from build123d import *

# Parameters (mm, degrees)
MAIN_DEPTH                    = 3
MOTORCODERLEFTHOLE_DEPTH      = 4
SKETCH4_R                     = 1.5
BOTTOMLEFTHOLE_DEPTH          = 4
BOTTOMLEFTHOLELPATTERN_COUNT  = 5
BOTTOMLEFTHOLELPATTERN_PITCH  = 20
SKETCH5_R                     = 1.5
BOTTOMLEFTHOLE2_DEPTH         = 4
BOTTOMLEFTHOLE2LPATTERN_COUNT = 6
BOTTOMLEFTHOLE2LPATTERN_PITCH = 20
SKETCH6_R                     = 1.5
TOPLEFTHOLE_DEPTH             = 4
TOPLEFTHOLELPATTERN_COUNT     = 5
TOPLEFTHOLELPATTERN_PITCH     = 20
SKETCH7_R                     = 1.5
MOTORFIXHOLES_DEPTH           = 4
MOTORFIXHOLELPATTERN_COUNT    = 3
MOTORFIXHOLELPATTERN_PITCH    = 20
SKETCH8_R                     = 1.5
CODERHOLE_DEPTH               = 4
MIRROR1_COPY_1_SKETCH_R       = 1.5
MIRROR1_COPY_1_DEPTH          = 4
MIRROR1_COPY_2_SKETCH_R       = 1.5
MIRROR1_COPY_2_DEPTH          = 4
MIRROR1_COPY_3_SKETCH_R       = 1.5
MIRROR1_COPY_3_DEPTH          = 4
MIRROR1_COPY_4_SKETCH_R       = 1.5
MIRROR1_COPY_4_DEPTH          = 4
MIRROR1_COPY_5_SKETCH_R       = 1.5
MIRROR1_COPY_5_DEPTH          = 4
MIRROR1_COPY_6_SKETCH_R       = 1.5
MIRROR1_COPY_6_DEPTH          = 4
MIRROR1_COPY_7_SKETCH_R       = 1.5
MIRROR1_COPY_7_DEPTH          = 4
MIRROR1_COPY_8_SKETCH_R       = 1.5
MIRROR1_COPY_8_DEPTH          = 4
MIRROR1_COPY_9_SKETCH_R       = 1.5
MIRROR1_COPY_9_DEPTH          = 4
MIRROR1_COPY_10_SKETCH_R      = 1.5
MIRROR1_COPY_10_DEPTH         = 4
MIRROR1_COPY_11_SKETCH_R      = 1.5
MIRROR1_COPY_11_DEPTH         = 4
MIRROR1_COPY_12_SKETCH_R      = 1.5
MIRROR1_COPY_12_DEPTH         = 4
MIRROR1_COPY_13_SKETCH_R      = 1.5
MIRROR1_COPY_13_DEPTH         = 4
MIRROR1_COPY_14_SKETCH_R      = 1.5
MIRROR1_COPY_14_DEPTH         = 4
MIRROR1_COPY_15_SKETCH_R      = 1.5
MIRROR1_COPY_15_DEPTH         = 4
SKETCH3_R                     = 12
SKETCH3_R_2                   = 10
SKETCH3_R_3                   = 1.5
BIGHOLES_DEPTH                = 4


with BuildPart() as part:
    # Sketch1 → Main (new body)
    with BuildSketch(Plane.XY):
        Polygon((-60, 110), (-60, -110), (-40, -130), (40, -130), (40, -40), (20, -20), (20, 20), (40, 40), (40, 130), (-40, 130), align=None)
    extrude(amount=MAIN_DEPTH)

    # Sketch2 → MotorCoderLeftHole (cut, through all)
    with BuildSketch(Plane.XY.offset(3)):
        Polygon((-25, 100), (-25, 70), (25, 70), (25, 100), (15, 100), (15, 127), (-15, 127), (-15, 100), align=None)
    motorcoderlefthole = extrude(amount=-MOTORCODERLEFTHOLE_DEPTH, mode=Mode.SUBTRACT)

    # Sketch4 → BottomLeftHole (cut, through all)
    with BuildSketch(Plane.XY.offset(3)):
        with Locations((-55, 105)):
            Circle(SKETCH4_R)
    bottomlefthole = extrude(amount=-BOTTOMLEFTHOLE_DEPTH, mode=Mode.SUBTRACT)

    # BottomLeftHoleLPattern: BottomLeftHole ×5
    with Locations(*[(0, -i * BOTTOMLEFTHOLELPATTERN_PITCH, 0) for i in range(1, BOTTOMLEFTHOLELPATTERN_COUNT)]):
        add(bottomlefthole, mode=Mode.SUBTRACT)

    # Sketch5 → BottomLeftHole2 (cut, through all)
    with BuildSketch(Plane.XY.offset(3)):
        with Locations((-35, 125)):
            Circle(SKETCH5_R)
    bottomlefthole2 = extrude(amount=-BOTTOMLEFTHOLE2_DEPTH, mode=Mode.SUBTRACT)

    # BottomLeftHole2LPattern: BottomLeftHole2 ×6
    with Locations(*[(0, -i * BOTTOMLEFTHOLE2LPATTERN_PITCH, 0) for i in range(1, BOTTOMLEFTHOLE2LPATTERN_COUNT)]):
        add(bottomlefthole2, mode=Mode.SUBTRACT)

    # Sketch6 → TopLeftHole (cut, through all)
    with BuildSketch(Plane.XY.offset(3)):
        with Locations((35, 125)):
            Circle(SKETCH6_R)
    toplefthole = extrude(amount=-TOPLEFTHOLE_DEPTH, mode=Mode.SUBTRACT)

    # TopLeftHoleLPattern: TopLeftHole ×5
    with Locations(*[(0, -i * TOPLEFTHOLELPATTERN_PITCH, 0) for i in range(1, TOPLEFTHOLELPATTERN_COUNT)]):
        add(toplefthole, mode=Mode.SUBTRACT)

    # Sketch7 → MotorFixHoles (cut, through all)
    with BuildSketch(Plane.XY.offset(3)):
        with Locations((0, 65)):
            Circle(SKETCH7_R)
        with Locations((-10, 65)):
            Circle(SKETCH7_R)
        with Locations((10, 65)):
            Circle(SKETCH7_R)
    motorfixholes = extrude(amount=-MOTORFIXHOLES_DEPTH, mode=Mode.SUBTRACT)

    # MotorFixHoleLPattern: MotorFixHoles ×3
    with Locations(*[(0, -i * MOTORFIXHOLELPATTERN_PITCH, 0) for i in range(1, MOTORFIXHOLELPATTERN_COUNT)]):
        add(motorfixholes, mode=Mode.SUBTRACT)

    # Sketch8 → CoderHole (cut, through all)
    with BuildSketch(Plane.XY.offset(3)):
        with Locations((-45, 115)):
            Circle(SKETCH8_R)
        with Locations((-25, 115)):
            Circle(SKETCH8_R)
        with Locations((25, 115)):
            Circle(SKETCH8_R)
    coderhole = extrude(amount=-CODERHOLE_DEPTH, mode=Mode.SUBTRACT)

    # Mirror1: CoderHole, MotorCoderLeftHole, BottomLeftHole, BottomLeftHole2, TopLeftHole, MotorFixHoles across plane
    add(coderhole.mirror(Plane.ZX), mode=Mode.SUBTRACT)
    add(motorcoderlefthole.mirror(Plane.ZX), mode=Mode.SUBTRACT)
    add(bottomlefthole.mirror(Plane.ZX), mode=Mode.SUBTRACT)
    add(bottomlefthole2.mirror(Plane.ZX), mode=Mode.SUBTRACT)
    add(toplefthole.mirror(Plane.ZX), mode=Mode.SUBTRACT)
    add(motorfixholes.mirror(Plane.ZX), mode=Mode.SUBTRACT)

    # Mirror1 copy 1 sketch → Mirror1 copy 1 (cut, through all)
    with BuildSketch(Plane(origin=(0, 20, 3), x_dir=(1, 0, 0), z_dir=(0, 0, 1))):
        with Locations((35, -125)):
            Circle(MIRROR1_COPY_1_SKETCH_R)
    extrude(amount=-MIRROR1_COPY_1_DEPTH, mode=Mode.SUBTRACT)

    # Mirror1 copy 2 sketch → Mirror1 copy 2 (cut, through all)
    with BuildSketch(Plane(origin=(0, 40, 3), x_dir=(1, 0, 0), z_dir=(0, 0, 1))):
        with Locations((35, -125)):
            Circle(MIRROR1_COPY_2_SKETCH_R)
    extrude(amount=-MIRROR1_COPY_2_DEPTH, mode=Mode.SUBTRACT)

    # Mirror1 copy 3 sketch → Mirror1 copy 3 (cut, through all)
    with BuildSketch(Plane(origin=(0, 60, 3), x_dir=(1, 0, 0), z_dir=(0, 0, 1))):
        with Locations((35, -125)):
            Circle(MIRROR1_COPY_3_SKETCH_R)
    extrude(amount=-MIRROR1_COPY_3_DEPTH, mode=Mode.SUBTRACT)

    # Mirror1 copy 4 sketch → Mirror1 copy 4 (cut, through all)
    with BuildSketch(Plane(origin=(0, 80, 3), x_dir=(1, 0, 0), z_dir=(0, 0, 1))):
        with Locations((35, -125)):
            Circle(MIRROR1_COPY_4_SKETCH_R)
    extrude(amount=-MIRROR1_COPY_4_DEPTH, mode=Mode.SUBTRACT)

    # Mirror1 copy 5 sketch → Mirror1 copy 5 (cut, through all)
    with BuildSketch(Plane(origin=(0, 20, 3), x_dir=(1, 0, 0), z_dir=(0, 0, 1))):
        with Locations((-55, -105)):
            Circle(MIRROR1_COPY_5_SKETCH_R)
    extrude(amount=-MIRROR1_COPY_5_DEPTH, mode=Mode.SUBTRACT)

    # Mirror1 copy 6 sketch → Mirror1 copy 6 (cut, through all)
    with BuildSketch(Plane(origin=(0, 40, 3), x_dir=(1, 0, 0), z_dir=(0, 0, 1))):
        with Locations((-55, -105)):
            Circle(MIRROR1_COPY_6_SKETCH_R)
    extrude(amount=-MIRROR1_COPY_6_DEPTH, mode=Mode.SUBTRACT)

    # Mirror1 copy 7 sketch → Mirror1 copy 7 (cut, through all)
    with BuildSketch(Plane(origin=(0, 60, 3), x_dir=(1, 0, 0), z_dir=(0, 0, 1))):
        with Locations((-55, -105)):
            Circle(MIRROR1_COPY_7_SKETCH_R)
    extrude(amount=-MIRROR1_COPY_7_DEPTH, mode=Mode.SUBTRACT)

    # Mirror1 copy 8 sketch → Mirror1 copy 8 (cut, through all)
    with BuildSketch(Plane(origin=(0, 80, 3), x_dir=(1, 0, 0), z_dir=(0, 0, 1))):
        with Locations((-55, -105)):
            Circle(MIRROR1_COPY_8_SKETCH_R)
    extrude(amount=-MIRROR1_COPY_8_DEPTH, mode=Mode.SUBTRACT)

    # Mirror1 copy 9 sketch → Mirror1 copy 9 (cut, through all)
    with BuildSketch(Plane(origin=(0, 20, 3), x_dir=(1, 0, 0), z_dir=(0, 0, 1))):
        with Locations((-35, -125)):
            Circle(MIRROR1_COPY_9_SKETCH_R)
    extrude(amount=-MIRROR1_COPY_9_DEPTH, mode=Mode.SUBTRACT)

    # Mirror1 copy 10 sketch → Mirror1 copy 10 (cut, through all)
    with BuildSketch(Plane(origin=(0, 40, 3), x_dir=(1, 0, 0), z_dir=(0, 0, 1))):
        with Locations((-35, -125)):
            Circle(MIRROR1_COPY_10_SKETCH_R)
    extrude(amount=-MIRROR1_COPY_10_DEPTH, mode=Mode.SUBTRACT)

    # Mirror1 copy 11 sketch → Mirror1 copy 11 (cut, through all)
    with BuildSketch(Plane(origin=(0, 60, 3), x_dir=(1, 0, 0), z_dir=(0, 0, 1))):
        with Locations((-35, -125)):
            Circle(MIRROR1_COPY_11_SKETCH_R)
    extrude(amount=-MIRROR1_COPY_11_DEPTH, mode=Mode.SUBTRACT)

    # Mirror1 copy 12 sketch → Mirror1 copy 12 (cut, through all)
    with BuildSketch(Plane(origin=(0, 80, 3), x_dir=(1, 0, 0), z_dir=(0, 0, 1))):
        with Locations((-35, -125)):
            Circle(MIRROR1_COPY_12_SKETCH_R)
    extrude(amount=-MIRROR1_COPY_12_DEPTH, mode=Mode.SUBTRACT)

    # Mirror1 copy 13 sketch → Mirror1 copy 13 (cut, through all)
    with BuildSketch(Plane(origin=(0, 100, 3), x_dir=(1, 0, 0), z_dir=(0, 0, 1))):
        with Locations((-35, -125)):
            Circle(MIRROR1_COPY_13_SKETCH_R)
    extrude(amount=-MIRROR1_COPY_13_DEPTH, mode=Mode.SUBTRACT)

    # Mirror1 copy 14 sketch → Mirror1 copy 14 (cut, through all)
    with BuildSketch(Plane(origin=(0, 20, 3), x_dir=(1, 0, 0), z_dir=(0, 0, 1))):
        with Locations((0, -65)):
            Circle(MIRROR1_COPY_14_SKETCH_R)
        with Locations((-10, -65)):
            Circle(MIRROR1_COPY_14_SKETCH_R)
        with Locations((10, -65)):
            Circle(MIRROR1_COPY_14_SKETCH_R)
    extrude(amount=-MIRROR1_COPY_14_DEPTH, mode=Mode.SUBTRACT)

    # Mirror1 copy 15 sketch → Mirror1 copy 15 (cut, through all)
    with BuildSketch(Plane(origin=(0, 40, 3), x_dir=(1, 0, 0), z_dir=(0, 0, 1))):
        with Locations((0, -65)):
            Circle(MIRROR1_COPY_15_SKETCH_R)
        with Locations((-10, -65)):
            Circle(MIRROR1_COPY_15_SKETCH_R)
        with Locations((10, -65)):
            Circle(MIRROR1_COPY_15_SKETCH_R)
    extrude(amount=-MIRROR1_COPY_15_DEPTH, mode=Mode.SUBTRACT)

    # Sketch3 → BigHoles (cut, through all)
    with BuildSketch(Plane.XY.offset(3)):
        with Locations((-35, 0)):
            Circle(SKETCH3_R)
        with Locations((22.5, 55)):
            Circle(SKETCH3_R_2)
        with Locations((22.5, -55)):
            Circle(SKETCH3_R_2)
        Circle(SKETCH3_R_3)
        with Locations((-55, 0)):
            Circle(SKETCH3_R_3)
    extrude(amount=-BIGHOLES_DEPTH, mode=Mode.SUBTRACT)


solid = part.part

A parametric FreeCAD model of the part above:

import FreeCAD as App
import Part
import Sketcher
from FreeCAD import Vector
Q = App.Units.Quantity

doc = App.newDocument("Part")
body = doc.addObject("PartDesign::Body", "Body")

sketch1 = body.newObject("Sketcher::SketchObject", "Sketch")
sketch1.AttachmentSupport = (doc.getObject("XY_Plane"), [""])
sketch1.MapMode = "FlatFace"
sketch1.addGeometry([
    Part.LineSegment(Vector(-60, 110, 0), Vector(-60, -110, 0)),
    Part.LineSegment(Vector(-60, -110, 0), Vector(-40, -130, 0)),
    Part.LineSegment(Vector(-40, -130, 0), Vector(40, -130, 0)),
    Part.LineSegment(Vector(40, -130, 0), Vector(40, -40, 0)),
    Part.LineSegment(Vector(40, -40, 0), Vector(20, -20, 0)),
    Part.LineSegment(Vector(20, -20, 0), Vector(20, 20, 0)),
    Part.LineSegment(Vector(20, 20, 0), Vector(40, 40, 0)),
    Part.LineSegment(Vector(40, 40, 0), Vector(40, 130, 0)),
    Part.LineSegment(Vector(40, 130, 0), Vector(-40, 130, 0)),
    Part.LineSegment(Vector(-40, 130, 0), Vector(-60, 110, 0)),
], False)
sketch1.addConstraint([
    Sketcher.Constraint("Coincident", 0, 2, 1, 1),
    Sketcher.Constraint("Coincident", 1, 2, 2, 1),
    Sketcher.Constraint("Coincident", 2, 2, 3, 1),
    Sketcher.Constraint("Coincident", 3, 2, 4, 1),
    Sketcher.Constraint("Coincident", 4, 2, 5, 1),
    Sketcher.Constraint("Coincident", 5, 2, 6, 1),
    Sketcher.Constraint("Coincident", 6, 2, 7, 1),
    Sketcher.Constraint("Coincident", 7, 2, 8, 1),
    Sketcher.Constraint("Coincident", 8, 2, 9, 1),
    Sketcher.Constraint("Coincident", 9, 2, 0, 1),
    Sketcher.Constraint("Vertical", 0),
    Sketcher.Constraint("Horizontal", 2),
    Sketcher.Constraint("Vertical", 3),
    Sketcher.Constraint("Vertical", 5),
    Sketcher.Constraint("Vertical", 7),
    Sketcher.Constraint("Horizontal", 8),
    Sketcher.Constraint("Symmetric", 1, 2, 7, 2, -1, 1),
    Sketcher.Constraint("Symmetric", 3, 2, 6, 2, -1),
    Sketcher.Constraint("Parallel", 1, 4),
    Sketcher.Constraint("Perpendicular", 4, 6),
    Sketcher.Constraint("Parallel", 6, 9),
    Sketcher.Constraint("Vertical", 1, 2, 8, 2),
    Sketcher.Constraint("Equal", 1, 4),
    Sketcher.Constraint("Equal", 4, 6),
    Sketcher.Constraint("DistanceX", 2, 1, 2, 2, Q("80 mm")),
    Sketcher.Constraint("DistanceY", 0, 2, 0, 1, Q("220 mm")),
    Sketcher.Constraint("DistanceY", 3, 1, 3, 2, Q("90 mm")),
    Sketcher.Constraint("DistanceX", 0, 2, -1, 1, Q("60 mm")),
])
pad1 = body.newObject("PartDesign::Pad", "Pad")
pad1.Profile = sketch1
pad1.Length = 3

sketch2 = body.newObject("Sketcher::SketchObject", "Sketch001")
sketch2.AttachmentSupport = (doc.getObject("XY_Plane"), [""])
sketch2.MapMode = "FlatFace"
sketch2.AttachmentOffset = App.Placement(Vector(0, 0, 3), App.Rotation())
sketch2.addGeometry([
    Part.LineSegment(Vector(-25, 100, 0), Vector(-25, 70, 0)),
    Part.LineSegment(Vector(-25, 70, 0), Vector(25, 70, 0)),
    Part.LineSegment(Vector(25, 70, 0), Vector(25, 100, 0)),
    Part.LineSegment(Vector(25, 100, 0), Vector(15, 100, 0)),
    Part.LineSegment(Vector(15, 100, 0), Vector(15, 127, 0)),
    Part.LineSegment(Vector(15, 127, 0), Vector(-15, 127, 0)),
    Part.LineSegment(Vector(-15, 127, 0), Vector(-15, 100, 0)),
    Part.LineSegment(Vector(-15, 100, 0), Vector(-25, 100, 0)),
], False)
sketch2.addConstraint([
    Sketcher.Constraint("Coincident", 0, 2, 1, 1),
    Sketcher.Constraint("Coincident", 1, 2, 2, 1),
    Sketcher.Constraint("Coincident", 2, 2, 3, 1),
    Sketcher.Constraint("Coincident", 3, 2, 4, 1),
    Sketcher.Constraint("Coincident", 4, 2, 5, 1),
    Sketcher.Constraint("Coincident", 5, 2, 6, 1),
    Sketcher.Constraint("Coincident", 6, 2, 7, 1),
    Sketcher.Constraint("Coincident", 7, 2, 0, 1),
    Sketcher.Constraint("Vertical", 0),
    Sketcher.Constraint("Horizontal", 1),
    Sketcher.Constraint("Vertical", 2),
    Sketcher.Constraint("Horizontal", 3),
    Sketcher.Constraint("Vertical", 4),
    Sketcher.Constraint("Horizontal", 5),
    Sketcher.Constraint("Vertical", 6),
    Sketcher.Constraint("Horizontal", 7),
    Sketcher.Constraint("Symmetric", 3, 2, 6, 2, -2),
    Sketcher.Constraint("Equal", 3, 7),
    Sketcher.Constraint("Equal", 5, 0),
    Sketcher.Constraint("DistanceX", 1, 1, 1, 2, Q("50 mm")),
    Sketcher.Constraint("DistanceX", 3, 2, 3, 1, Q("10 mm")),
    Sketcher.Constraint("DistanceY", 4, 1, 4, 2, Q("27 mm")),
    Sketcher.Constraint("DistanceY", -1, 1, 0, 2, Q("70 mm")),
])
pocket1 = body.newObject("PartDesign::Pocket", "Pocket")
pocket1.Profile = sketch2
pocket1.Type = "ThroughAll"

sketch3 = body.newObject("Sketcher::SketchObject", "Sketch002")
sketch3.AttachmentSupport = (doc.getObject("XY_Plane"), [""])
sketch3.MapMode = "FlatFace"
sketch3.AttachmentOffset = App.Placement(Vector(0, 0, 3), App.Rotation())
sketch3.addGeometry(Part.Circle(Vector(-55, 105, 0), Vector(0, 0, 1), 1.5), False)
sketch3.addConstraint([
    Sketcher.Constraint("Diameter", 0, Q("3 mm")),
    Sketcher.Constraint("DistanceX", 0, 3, -1, 1, Q("55 mm")),
    Sketcher.Constraint("DistanceY", -1, 1, 0, 3, Q("105 mm")),
])
pocket2 = body.newObject("PartDesign::Pocket", "Pocket001")
pocket2.Profile = sketch3
pocket2.Type = "ThroughAll"
doc.recompute()

linearpattern = body.newObject("PartDesign::LinearPattern", "LinearPattern")
linearpattern.Originals = [pocket2]
linearpattern.Direction = (doc.getObject("Y_Axis"), [""])
linearpattern.Mode = "offset"
linearpattern.Offset = 20
linearpattern.Occurrences = 5
linearpattern.Reversed = True
body.Tip = linearpattern

sketch4 = body.newObject("Sketcher::SketchObject", "Sketch003")
sketch4.AttachmentSupport = (doc.getObject("XY_Plane"), [""])
sketch4.MapMode = "FlatFace"
sketch4.AttachmentOffset = App.Placement(Vector(0, 0, 3), App.Rotation())
sketch4.addGeometry(Part.Circle(Vector(-35, 125, 0), Vector(0, 0, 1), 1.5), False)
sketch4.addConstraint([
    Sketcher.Constraint("Diameter", 0, Q("3 mm")),
    Sketcher.Constraint("DistanceX", 0, 3, -1, 1, Q("35 mm")),
    Sketcher.Constraint("DistanceY", -1, 1, 0, 3, Q("125 mm")),
])
pocket3 = body.newObject("PartDesign::Pocket", "Pocket002")
pocket3.Profile = sketch4
pocket3.Type = "ThroughAll"
doc.recompute()

linearpattern2 = body.newObject("PartDesign::LinearPattern", "LinearPattern001")
linearpattern2.Originals = [pocket3]
linearpattern2.Direction = (doc.getObject("Y_Axis"), [""])
linearpattern2.Mode = "offset"
linearpattern2.Offset = 20
linearpattern2.Occurrences = 6
linearpattern2.Reversed = True
body.Tip = linearpattern2

sketch5 = body.newObject("Sketcher::SketchObject", "Sketch004")
sketch5.AttachmentSupport = (doc.getObject("XY_Plane"), [""])
sketch5.MapMode = "FlatFace"
sketch5.AttachmentOffset = App.Placement(Vector(0, 0, 3), App.Rotation())
sketch5.addGeometry(Part.Circle(Vector(35, 125, 0), Vector(0, 0, 1), 1.5), False)
sketch5.addConstraint([
    Sketcher.Constraint("Diameter", 0, Q("3 mm")),
    Sketcher.Constraint("DistanceX", -1, 1, 0, 3, Q("35 mm")),
    Sketcher.Constraint("DistanceY", -1, 1, 0, 3, Q("125 mm")),
])
pocket4 = body.newObject("PartDesign::Pocket", "Pocket003")
pocket4.Profile = sketch5
pocket4.Type = "ThroughAll"
doc.recompute()

linearpattern3 = body.newObject("PartDesign::LinearPattern", "LinearPattern002")
linearpattern3.Originals = [pocket4]
linearpattern3.Direction = (doc.getObject("Y_Axis"), [""])
linearpattern3.Mode = "offset"
linearpattern3.Offset = 20
linearpattern3.Occurrences = 5
linearpattern3.Reversed = True
body.Tip = linearpattern3

sketch6 = body.newObject("Sketcher::SketchObject", "Sketch005")
sketch6.AttachmentSupport = (doc.getObject("XY_Plane"), [""])
sketch6.MapMode = "FlatFace"
sketch6.AttachmentOffset = App.Placement(Vector(0, 0, 3), App.Rotation())
sketch6.addGeometry([
    Part.Circle(Vector(0, 65, 0), Vector(0, 0, 1), 1.5),
    Part.Circle(Vector(-10, 65, 0), Vector(0, 0, 1), 1.5),
    Part.Circle(Vector(10, 65, 0), Vector(0, 0, 1), 1.5),
], False)
sketch6.addConstraint([
    Sketcher.Constraint("Equal", 0, 1),
    Sketcher.Constraint("Equal", 1, 2),
    Sketcher.Constraint("Symmetric", 1, 3, 2, 3, -2),
    Sketcher.Constraint("PointOnObject", 0, 3, -2),
    Sketcher.Constraint("Horizontal", 0, 3, 1, 3),
    Sketcher.Constraint("Diameter", 0, Q("3 mm")),
    Sketcher.Constraint("DistanceY", -1, 1, 0, 3, Q("65 mm")),
    Sketcher.Constraint("DistanceX", 1, 3, -1, 1, Q("10 mm")),
])
pocket5 = body.newObject("PartDesign::Pocket", "Pocket004")
pocket5.Profile = sketch6
pocket5.Type = "ThroughAll"
doc.recompute()

linearpattern4 = body.newObject("PartDesign::LinearPattern", "LinearPattern003")
linearpattern4.Originals = [pocket5]
linearpattern4.Direction = (doc.getObject("Y_Axis"), [""])
linearpattern4.Mode = "offset"
linearpattern4.Offset = 20
linearpattern4.Occurrences = 3
linearpattern4.Reversed = True
body.Tip = linearpattern4

sketch7 = body.newObject("Sketcher::SketchObject", "Sketch006")
sketch7.AttachmentSupport = (doc.getObject("XY_Plane"), [""])
sketch7.MapMode = "FlatFace"
sketch7.AttachmentOffset = App.Placement(Vector(0, 0, 3), App.Rotation())
sketch7.addGeometry([
    Part.Circle(Vector(-45, 115, 0), Vector(0, 0, 1), 1.5),
    Part.Circle(Vector(-25, 115, 0), Vector(0, 0, 1), 1.5),
    Part.Circle(Vector(25, 115, 0), Vector(0, 0, 1), 1.5),
], False)
sketch7.addConstraint([
    Sketcher.Constraint("Equal", 0, 1),
    Sketcher.Constraint("Equal", 1, 2),
    Sketcher.Constraint("Symmetric", 1, 3, 2, 3, -2),
    Sketcher.Constraint("Horizontal", 0, 3, 1, 3),
    Sketcher.Constraint("Diameter", 0, Q("3 mm")),
    Sketcher.Constraint("DistanceX", 0, 3, -1, 1, Q("45 mm")),
    Sketcher.Constraint("DistanceY", -1, 1, 0, 3, Q("115 mm")),
    Sketcher.Constraint("DistanceX", 1, 3, -1, 1, Q("25 mm")),
])
pocket6 = body.newObject("PartDesign::Pocket", "Pocket005")
pocket6.Profile = sketch7
pocket6.Type = "ThroughAll"
doc.recompute()

mirrored = body.newObject("PartDesign::Mirrored", "Mirrored")
mirrored.Originals = [pocket6, pocket1, pocket2, pocket3, pocket4, pocket5]
mirrored.MirrorPlane = (doc.getObject("XZ_Plane"), [""])
body.Tip = mirrored

sketch8 = body.newObject("Sketcher::SketchObject", "Sketch007")
sketch8.AttachmentSupport = (doc.getObject("XY_Plane"), [""])
sketch8.MapMode = "FlatFace"
sketch8.AttachmentOffset = App.Placement(Vector(0, 0, 3), App.Rotation())
sketch8.addGeometry(Part.Circle(Vector(35, -105, 0), Vector(0, 0, 1), 1.5), False)
sketch8.addConstraint([
    Sketcher.Constraint("Diameter", 0, Q("3 mm")),
    Sketcher.Constraint("DistanceX", -1, 1, 0, 3, Q("35 mm")),
    Sketcher.Constraint("DistanceY", 0, 3, -1, 1, Q("105 mm")),
])
pocket7 = body.newObject("PartDesign::Pocket", "Pocket006")
pocket7.Profile = sketch8
pocket7.Type = "ThroughAll"

sketch9 = body.newObject("Sketcher::SketchObject", "Sketch008")
sketch9.AttachmentSupport = (doc.getObject("XY_Plane"), [""])
sketch9.MapMode = "FlatFace"
sketch9.AttachmentOffset = App.Placement(Vector(0, 0, 3), App.Rotation())
sketch9.addGeometry(Part.Circle(Vector(35, -85, 0), Vector(0, 0, 1), 1.5), False)
sketch9.addConstraint([
    Sketcher.Constraint("Diameter", 0, Q("3 mm")),
    Sketcher.Constraint("DistanceX", -1, 1, 0, 3, Q("35 mm")),
    Sketcher.Constraint("DistanceY", 0, 3, -1, 1, Q("85 mm")),
])
pocket8 = body.newObject("PartDesign::Pocket", "Pocket007")
pocket8.Profile = sketch9
pocket8.Type = "ThroughAll"

sketch10 = body.newObject("Sketcher::SketchObject", "Sketch009")
sketch10.AttachmentSupport = (doc.getObject("XY_Plane"), [""])
sketch10.MapMode = "FlatFace"
sketch10.AttachmentOffset = App.Placement(Vector(0, 0, 3), App.Rotation())
sketch10.addGeometry(Part.Circle(Vector(35, -65, 0), Vector(0, 0, 1), 1.5), False)
sketch10.addConstraint([
    Sketcher.Constraint("Diameter", 0, Q("3 mm")),
    Sketcher.Constraint("DistanceX", -1, 1, 0, 3, Q("35 mm")),
    Sketcher.Constraint("DistanceY", 0, 3, -1, 1, Q("65 mm")),
])
pocket9 = body.newObject("PartDesign::Pocket", "Pocket008")
pocket9.Profile = sketch10
pocket9.Type = "ThroughAll"

sketch11 = body.newObject("Sketcher::SketchObject", "Sketch010")
sketch11.AttachmentSupport = (doc.getObject("XY_Plane"), [""])
sketch11.MapMode = "FlatFace"
sketch11.AttachmentOffset = App.Placement(Vector(0, 0, 3), App.Rotation())
sketch11.addGeometry(Part.Circle(Vector(35, -45, 0), Vector(0, 0, 1), 1.5), False)
sketch11.addConstraint([
    Sketcher.Constraint("Diameter", 0, Q("3 mm")),
    Sketcher.Constraint("DistanceX", -1, 1, 0, 3, Q("35 mm")),
    Sketcher.Constraint("DistanceY", 0, 3, -1, 1, Q("45 mm")),
])
pocket10 = body.newObject("PartDesign::Pocket", "Pocket009")
pocket10.Profile = sketch11
pocket10.Type = "ThroughAll"

sketch12 = body.newObject("Sketcher::SketchObject", "Sketch011")
sketch12.AttachmentSupport = (doc.getObject("XY_Plane"), [""])
sketch12.MapMode = "FlatFace"
sketch12.AttachmentOffset = App.Placement(Vector(0, 0, 3), App.Rotation())
sketch12.addGeometry(Part.Circle(Vector(-55, -85, 0), Vector(0, 0, 1), 1.5), False)
sketch12.addConstraint([
    Sketcher.Constraint("Diameter", 0, Q("3 mm")),
    Sketcher.Constraint("DistanceX", 0, 3, -1, 1, Q("55 mm")),
    Sketcher.Constraint("DistanceY", 0, 3, -1, 1, Q("85 mm")),
])
pocket11 = body.newObject("PartDesign::Pocket", "Pocket010")
pocket11.Profile = sketch12
pocket11.Type = "ThroughAll"

sketch13 = body.newObject("Sketcher::SketchObject", "Sketch012")
sketch13.AttachmentSupport = (doc.getObject("XY_Plane"), [""])
sketch13.MapMode = "FlatFace"
sketch13.AttachmentOffset = App.Placement(Vector(0, 0, 3), App.Rotation())
sketch13.addGeometry(Part.Circle(Vector(-55, -65, 0), Vector(0, 0, 1), 1.5), False)
sketch13.addConstraint([
    Sketcher.Constraint("Diameter", 0, Q("3 mm")),
    Sketcher.Constraint("DistanceX", 0, 3, -1, 1, Q("55 mm")),
    Sketcher.Constraint("DistanceY", 0, 3, -1, 1, Q("65 mm")),
])
pocket12 = body.newObject("PartDesign::Pocket", "Pocket011")
pocket12.Profile = sketch13
pocket12.Type = "ThroughAll"

sketch14 = body.newObject("Sketcher::SketchObject", "Sketch013")
sketch14.AttachmentSupport = (doc.getObject("XY_Plane"), [""])
sketch14.MapMode = "FlatFace"
sketch14.AttachmentOffset = App.Placement(Vector(0, 0, 3), App.Rotation())
sketch14.addGeometry(Part.Circle(Vector(-55, -45, 0), Vector(0, 0, 1), 1.5), False)
sketch14.addConstraint([
    Sketcher.Constraint("Diameter", 0, Q("3 mm")),
    Sketcher.Constraint("DistanceX", 0, 3, -1, 1, Q("55 mm")),
    Sketcher.Constraint("DistanceY", 0, 3, -1, 1, Q("45 mm")),
])
pocket13 = body.newObject("PartDesign::Pocket", "Pocket012")
pocket13.Profile = sketch14
pocket13.Type = "ThroughAll"

sketch15 = body.newObject("Sketcher::SketchObject", "Sketch014")
sketch15.AttachmentSupport = (doc.getObject("XY_Plane"), [""])
sketch15.MapMode = "FlatFace"
sketch15.AttachmentOffset = App.Placement(Vector(0, 0, 3), App.Rotation())
sketch15.addGeometry(Part.Circle(Vector(-55, -25, 0), Vector(0, 0, 1), 1.5), False)
sketch15.addConstraint([
    Sketcher.Constraint("Diameter", 0, Q("3 mm")),
    Sketcher.Constraint("DistanceX", 0, 3, -1, 1, Q("55 mm")),
    Sketcher.Constraint("DistanceY", 0, 3, -1, 1, Q("25 mm")),
])
pocket14 = body.newObject("PartDesign::Pocket", "Pocket013")
pocket14.Profile = sketch15
pocket14.Type = "ThroughAll"

sketch16 = body.newObject("Sketcher::SketchObject", "Sketch015")
sketch16.AttachmentSupport = (doc.getObject("XY_Plane"), [""])
sketch16.MapMode = "FlatFace"
sketch16.AttachmentOffset = App.Placement(Vector(0, 0, 3), App.Rotation())
sketch16.addGeometry(Part.Circle(Vector(-35, -105, 0), Vector(0, 0, 1), 1.5), False)
sketch16.addConstraint([
    Sketcher.Constraint("Diameter", 0, Q("3 mm")),
    Sketcher.Constraint("DistanceX", 0, 3, -1, 1, Q("35 mm")),
    Sketcher.Constraint("DistanceY", 0, 3, -1, 1, Q("105 mm")),
])
pocket15 = body.newObject("PartDesign::Pocket", "Pocket014")
pocket15.Profile = sketch16
pocket15.Type = "ThroughAll"

sketch17 = body.newObject("Sketcher::SketchObject", "Sketch016")
sketch17.AttachmentSupport = (doc.getObject("XY_Plane"), [""])
sketch17.MapMode = "FlatFace"
sketch17.AttachmentOffset = App.Placement(Vector(0, 0, 3), App.Rotation())
sketch17.addGeometry(Part.Circle(Vector(-35, -85, 0), Vector(0, 0, 1), 1.5), False)
sketch17.addConstraint([
    Sketcher.Constraint("Diameter", 0, Q("3 mm")),
    Sketcher.Constraint("DistanceX", 0, 3, -1, 1, Q("35 mm")),
    Sketcher.Constraint("DistanceY", 0, 3, -1, 1, Q("85 mm")),
])
pocket16 = body.newObject("PartDesign::Pocket", "Pocket015")
pocket16.Profile = sketch17
pocket16.Type = "ThroughAll"

sketch18 = body.newObject("Sketcher::SketchObject", "Sketch017")
sketch18.AttachmentSupport = (doc.getObject("XY_Plane"), [""])
sketch18.MapMode = "FlatFace"
sketch18.AttachmentOffset = App.Placement(Vector(0, 0, 3), App.Rotation())
sketch18.addGeometry(Part.Circle(Vector(-35, -65, 0), Vector(0, 0, 1), 1.5), False)
sketch18.addConstraint([
    Sketcher.Constraint("Diameter", 0, Q("3 mm")),
    Sketcher.Constraint("DistanceX", 0, 3, -1, 1, Q("35 mm")),
    Sketcher.Constraint("DistanceY", 0, 3, -1, 1, Q("65 mm")),
])
pocket17 = body.newObject("PartDesign::Pocket", "Pocket016")
pocket17.Profile = sketch18
pocket17.Type = "ThroughAll"

sketch19 = body.newObject("Sketcher::SketchObject", "Sketch018")
sketch19.AttachmentSupport = (doc.getObject("XY_Plane"), [""])
sketch19.MapMode = "FlatFace"
sketch19.AttachmentOffset = App.Placement(Vector(0, 0, 3), App.Rotation())
sketch19.addGeometry(Part.Circle(Vector(-35, -45, 0), Vector(0, 0, 1), 1.5), False)
sketch19.addConstraint([
    Sketcher.Constraint("Diameter", 0, Q("3 mm")),
    Sketcher.Constraint("DistanceX", 0, 3, -1, 1, Q("35 mm")),
    Sketcher.Constraint("DistanceY", 0, 3, -1, 1, Q("45 mm")),
])
pocket18 = body.newObject("PartDesign::Pocket", "Pocket017")
pocket18.Profile = sketch19
pocket18.Type = "ThroughAll"

sketch20 = body.newObject("Sketcher::SketchObject", "Sketch019")
sketch20.AttachmentSupport = (doc.getObject("XY_Plane"), [""])
sketch20.MapMode = "FlatFace"
sketch20.AttachmentOffset = App.Placement(Vector(0, 0, 3), App.Rotation())
sketch20.addGeometry(Part.Circle(Vector(-35, -25, 0), Vector(0, 0, 1), 1.5), False)
sketch20.addConstraint([
    Sketcher.Constraint("Diameter", 0, Q("3 mm")),
    Sketcher.Constraint("DistanceX", 0, 3, -1, 1, Q("35 mm")),
    Sketcher.Constraint("DistanceY", 0, 3, -1, 1, Q("25 mm")),
])
pocket19 = body.newObject("PartDesign::Pocket", "Pocket018")
pocket19.Profile = sketch20
pocket19.Type = "ThroughAll"

sketch21 = body.newObject("Sketcher::SketchObject", "Sketch020")
sketch21.AttachmentSupport = (doc.getObject("XY_Plane"), [""])
sketch21.MapMode = "FlatFace"
sketch21.AttachmentOffset = App.Placement(Vector(0, 0, 3), App.Rotation())
sketch21.addGeometry([
    Part.Circle(Vector(0, -45, 0), Vector(0, 0, 1), 1.5),
    Part.Circle(Vector(-10, -45, 0), Vector(0, 0, 1), 1.5),
    Part.Circle(Vector(10, -45, 0), Vector(0, 0, 1), 1.5),
], False)
sketch21.addConstraint([
    Sketcher.Constraint("Equal", 0, 1),
    Sketcher.Constraint("Equal", 1, 2),
    Sketcher.Constraint("Symmetric", 1, 3, 2, 3, -2),
    Sketcher.Constraint("PointOnObject", 0, 3, -2),
    Sketcher.Constraint("Horizontal", 0, 3, 1, 3),
    Sketcher.Constraint("Diameter", 0, Q("3 mm")),
    Sketcher.Constraint("DistanceY", 0, 3, -1, 1, Q("45 mm")),
    Sketcher.Constraint("DistanceX", 1, 3, -1, 1, Q("10 mm")),
])
pocket20 = body.newObject("PartDesign::Pocket", "Pocket019")
pocket20.Profile = sketch21
pocket20.Type = "ThroughAll"

sketch22 = body.newObject("Sketcher::SketchObject", "Sketch021")
sketch22.AttachmentSupport = (doc.getObject("XY_Plane"), [""])
sketch22.MapMode = "FlatFace"
sketch22.AttachmentOffset = App.Placement(Vector(0, 0, 3), App.Rotation())
sketch22.addGeometry([
    Part.Circle(Vector(0, -25, 0), Vector(0, 0, 1), 1.5),
    Part.Circle(Vector(-10, -25, 0), Vector(0, 0, 1), 1.5),
    Part.Circle(Vector(10, -25, 0), Vector(0, 0, 1), 1.5),
], False)
sketch22.addConstraint([
    Sketcher.Constraint("Equal", 0, 1),
    Sketcher.Constraint("Equal", 1, 2),
    Sketcher.Constraint("Symmetric", 1, 3, 2, 3, -2),
    Sketcher.Constraint("PointOnObject", 0, 3, -2),
    Sketcher.Constraint("Horizontal", 0, 3, 1, 3),
    Sketcher.Constraint("Diameter", 0, Q("3 mm")),
    Sketcher.Constraint("DistanceY", 0, 3, -1, 1, Q("25 mm")),
    Sketcher.Constraint("DistanceX", 1, 3, -1, 1, Q("10 mm")),
])
pocket21 = body.newObject("PartDesign::Pocket", "Pocket020")
pocket21.Profile = sketch22
pocket21.Type = "ThroughAll"

sketch23 = body.newObject("Sketcher::SketchObject", "Sketch022")
sketch23.AttachmentSupport = (doc.getObject("XY_Plane"), [""])
sketch23.MapMode = "FlatFace"
sketch23.AttachmentOffset = App.Placement(Vector(0, 0, 3), App.Rotation())
sketch23.addGeometry([
    Part.Circle(Vector(-35, 0, 0), Vector(0, 0, 1), 12),
    Part.Circle(Vector(22.5, 55, 0), Vector(0, 0, 1), 10),
    Part.Circle(Vector(22.5, -55, 0), Vector(0, 0, 1), 10),
    Part.Circle(Vector(0, 0, 0), Vector(0, 0, 1), 1.5),
    Part.Circle(Vector(-55, 0, 0), Vector(0, 0, 1), 1.5),
], False)
sketch23.addConstraint([
    Sketcher.Constraint("Coincident", 3, 3, -1, 1),
    Sketcher.Constraint("Equal", 1, 2),
    Sketcher.Constraint("Equal", 3, 4),
    Sketcher.Constraint("Symmetric", 1, 3, 2, 3, -1),
    Sketcher.Constraint("PointOnObject", 0, 3, -1),
    Sketcher.Constraint("PointOnObject", 4, 3, -1),
    Sketcher.Constraint("Diameter", 0, Q("24 mm")),
    Sketcher.Constraint("Diameter", 1, Q("20 mm")),
    Sketcher.Constraint("Diameter", 3, Q("3 mm")),
    Sketcher.Constraint("DistanceX", 0, 3, -1, 1, Q("35 mm")),
    Sketcher.Constraint("DistanceY", -1, 1, 1, 3, Q("55 mm")),
    Sketcher.Constraint("DistanceX", 4, 3, -1, 1, Q("55 mm")),
    Sketcher.Constraint("DistanceX", -1, 1, 1, 3, Q("22.5 mm")),
])
pocket22 = body.newObject("PartDesign::Pocket", "Pocket021")
pocket22.Profile = sketch23
pocket22.Type = "ThroughAll"

doc.recompute()
